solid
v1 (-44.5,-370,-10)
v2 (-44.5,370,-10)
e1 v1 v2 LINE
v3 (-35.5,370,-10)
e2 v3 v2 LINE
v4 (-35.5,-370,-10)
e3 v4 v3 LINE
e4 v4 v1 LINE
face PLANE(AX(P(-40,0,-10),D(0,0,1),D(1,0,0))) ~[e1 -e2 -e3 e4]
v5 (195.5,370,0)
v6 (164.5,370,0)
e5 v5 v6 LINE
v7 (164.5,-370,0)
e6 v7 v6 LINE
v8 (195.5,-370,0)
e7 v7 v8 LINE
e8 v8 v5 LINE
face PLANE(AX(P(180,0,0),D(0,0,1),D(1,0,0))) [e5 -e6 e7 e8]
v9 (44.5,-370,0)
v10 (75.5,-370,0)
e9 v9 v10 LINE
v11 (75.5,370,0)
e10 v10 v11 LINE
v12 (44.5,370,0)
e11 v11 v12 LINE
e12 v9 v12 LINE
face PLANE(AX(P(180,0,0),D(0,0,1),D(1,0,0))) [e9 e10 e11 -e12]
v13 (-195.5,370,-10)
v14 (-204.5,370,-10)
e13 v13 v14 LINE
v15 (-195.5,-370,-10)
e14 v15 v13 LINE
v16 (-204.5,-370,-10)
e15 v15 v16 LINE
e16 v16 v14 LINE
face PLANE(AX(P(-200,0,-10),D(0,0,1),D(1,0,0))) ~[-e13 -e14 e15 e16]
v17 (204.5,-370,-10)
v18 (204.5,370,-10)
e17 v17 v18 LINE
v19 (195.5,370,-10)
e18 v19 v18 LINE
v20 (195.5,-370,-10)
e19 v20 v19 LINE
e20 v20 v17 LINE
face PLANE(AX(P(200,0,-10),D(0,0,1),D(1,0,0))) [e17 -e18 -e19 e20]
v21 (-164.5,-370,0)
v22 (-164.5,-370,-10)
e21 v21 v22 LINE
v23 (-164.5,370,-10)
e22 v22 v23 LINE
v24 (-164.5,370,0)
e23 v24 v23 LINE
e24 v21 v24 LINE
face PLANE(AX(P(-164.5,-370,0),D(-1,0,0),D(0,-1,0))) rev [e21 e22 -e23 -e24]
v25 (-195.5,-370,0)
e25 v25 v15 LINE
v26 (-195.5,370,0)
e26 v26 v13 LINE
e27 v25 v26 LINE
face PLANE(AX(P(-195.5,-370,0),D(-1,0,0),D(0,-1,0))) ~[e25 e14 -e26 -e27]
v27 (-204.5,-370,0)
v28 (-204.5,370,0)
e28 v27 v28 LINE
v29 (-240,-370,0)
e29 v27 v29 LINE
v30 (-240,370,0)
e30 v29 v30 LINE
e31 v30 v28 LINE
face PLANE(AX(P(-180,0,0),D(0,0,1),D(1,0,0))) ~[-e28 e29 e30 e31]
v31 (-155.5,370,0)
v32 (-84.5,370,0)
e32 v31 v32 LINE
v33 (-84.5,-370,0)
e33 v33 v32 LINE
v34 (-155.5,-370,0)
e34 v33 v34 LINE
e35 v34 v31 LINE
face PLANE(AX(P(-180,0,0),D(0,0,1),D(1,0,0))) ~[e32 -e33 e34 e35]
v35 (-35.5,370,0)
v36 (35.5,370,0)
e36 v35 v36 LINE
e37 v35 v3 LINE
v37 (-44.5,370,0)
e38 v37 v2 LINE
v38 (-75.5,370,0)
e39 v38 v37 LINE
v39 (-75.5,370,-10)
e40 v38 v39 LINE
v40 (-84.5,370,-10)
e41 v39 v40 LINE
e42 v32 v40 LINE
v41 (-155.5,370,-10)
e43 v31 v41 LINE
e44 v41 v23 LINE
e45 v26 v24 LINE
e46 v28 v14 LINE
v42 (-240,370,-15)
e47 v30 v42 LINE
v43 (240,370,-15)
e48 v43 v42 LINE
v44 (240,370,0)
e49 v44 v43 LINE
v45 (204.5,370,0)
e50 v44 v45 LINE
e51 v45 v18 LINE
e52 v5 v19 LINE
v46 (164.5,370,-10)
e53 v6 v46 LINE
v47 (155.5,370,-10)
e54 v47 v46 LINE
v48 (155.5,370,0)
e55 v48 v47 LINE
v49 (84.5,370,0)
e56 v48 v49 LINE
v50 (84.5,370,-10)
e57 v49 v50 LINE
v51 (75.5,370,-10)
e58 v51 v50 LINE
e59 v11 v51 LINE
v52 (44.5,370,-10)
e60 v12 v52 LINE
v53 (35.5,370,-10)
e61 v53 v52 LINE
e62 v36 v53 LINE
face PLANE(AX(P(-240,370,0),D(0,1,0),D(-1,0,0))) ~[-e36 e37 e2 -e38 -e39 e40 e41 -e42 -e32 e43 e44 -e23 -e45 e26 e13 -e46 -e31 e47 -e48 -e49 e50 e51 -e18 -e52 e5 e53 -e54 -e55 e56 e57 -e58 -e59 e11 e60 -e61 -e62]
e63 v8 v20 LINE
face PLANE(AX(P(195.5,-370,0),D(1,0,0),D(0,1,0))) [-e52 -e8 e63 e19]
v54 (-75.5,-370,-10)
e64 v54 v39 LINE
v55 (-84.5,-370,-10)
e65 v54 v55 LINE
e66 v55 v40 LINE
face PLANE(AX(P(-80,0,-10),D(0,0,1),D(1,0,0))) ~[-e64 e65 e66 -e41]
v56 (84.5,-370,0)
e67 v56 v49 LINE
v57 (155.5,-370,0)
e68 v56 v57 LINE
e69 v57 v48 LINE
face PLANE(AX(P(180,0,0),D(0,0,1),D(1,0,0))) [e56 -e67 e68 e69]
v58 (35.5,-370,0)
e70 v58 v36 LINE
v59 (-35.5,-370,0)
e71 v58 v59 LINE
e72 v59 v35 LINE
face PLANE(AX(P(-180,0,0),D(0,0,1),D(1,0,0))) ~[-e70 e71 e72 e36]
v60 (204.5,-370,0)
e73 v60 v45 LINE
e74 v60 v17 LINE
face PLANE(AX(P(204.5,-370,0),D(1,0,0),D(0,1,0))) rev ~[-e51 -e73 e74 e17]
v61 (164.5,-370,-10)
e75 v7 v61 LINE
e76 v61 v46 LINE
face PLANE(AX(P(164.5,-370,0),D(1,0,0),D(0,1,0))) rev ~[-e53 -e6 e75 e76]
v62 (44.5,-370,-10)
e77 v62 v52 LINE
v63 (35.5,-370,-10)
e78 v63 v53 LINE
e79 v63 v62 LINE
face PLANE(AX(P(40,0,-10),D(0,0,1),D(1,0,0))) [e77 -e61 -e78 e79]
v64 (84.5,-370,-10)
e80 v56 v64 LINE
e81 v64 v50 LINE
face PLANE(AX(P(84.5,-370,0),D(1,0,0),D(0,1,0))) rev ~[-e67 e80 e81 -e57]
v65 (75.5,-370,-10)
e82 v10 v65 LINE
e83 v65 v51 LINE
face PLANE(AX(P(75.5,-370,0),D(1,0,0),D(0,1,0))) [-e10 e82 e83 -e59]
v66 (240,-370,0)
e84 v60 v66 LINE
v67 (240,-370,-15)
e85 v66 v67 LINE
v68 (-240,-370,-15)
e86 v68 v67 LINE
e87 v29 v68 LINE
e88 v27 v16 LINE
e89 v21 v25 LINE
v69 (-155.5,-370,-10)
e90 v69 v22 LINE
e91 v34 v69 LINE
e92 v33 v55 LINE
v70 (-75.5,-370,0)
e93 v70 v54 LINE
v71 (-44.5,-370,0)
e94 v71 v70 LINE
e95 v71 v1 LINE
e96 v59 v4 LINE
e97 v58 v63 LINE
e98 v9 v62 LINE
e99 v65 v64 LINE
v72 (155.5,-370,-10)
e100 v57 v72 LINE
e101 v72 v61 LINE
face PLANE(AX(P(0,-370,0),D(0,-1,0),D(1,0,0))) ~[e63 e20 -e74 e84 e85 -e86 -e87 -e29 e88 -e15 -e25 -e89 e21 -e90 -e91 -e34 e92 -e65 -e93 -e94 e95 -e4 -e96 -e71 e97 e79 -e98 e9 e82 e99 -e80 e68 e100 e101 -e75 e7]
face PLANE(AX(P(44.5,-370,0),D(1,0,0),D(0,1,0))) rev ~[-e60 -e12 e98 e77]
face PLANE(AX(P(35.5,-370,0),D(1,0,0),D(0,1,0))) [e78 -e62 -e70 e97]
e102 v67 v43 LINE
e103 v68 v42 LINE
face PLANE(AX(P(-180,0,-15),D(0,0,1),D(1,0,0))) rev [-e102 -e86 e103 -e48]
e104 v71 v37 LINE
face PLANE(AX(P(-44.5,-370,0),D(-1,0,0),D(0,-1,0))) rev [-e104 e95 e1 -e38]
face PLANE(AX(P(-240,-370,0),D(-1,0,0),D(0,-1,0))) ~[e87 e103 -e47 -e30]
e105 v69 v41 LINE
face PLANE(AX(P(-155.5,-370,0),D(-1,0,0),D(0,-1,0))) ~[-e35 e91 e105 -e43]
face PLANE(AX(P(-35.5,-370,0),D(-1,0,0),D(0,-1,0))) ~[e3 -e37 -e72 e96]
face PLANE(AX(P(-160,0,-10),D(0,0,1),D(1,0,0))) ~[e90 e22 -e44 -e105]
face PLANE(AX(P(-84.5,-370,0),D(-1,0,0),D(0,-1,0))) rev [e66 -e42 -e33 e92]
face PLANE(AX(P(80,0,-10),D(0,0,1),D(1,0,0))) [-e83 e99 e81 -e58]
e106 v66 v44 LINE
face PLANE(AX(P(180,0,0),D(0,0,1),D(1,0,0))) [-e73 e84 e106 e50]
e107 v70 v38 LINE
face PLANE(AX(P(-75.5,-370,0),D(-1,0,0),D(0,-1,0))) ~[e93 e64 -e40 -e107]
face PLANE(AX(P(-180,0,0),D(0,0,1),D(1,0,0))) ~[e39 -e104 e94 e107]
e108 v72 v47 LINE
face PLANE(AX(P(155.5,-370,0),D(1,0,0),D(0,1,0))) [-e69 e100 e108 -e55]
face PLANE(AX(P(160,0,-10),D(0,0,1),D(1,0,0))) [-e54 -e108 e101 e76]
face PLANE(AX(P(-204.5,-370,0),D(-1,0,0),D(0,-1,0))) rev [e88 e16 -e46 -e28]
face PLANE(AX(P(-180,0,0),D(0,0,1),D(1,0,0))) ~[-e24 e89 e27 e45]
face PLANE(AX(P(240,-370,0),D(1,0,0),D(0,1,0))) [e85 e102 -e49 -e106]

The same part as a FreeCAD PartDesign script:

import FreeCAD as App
import Part
import Sketcher
from FreeCAD import Vector


def add_polygon(sketch, points):
    """Adds a closed chain of lines whose ends are joined by coincident constraints."""
    first, n = sketch.GeometryCount, len(points)
    for a, b in zip(points, points[1:] + points[:1]):
        sketch.addGeometry(Part.LineSegment(App.Vector(*a, 0), App.Vector(*b, 0)), False)
    for i in range(n):
        sketch.addConstraint(Sketcher.Constraint("Coincident", first + i, 2, first + (i + 1) % n, 1))

doc = App.newDocument("Part")
body = doc.addObject("PartDesign::Body", "Body")

sketch1 = body.newObject("Sketcher::SketchObject", "Sketch")
sketch1.AttachmentSupport = (doc.getObject("XY_Plane"), [""])
sketch1.MapMode = "FlatFace"
add_polygon(sketch1, [(240, -370), (240, 370), (0, 370), (0, -370)])
sketch1.addConstraint([
    Sketcher.Constraint("Vertical", 0),
    Sketcher.Constraint("Horizontal", 1),
    Sketcher.Constraint("Vertical", 2),
    Sketcher.Constraint("Horizontal", 3),
    Sketcher.Constraint("Symmetric", 1, 2, 2, 2, -1, 1),
    Sketcher.Constraint("DistanceX", 1, 2, 1, 1, 240.0),
    Sketcher.Constraint("DistanceY", 0, 1, 0, 2, 740.0),
])
pad1 = body.newObject("PartDesign::Pad", "Pad")
pad1.Profile = sketch1
pad1.Length = 15
pad1.Reversed = True

sketch2 = body.newObject("Sketcher::SketchObject", "Sketch001")
sketch2.AttachmentSupport = (doc.getObject("XY_Plane"), [""])
sketch2.MapMode = "FlatFace"
add_polygon(sketch2, [(36, 370), (36, -370), (44, -370), (44, 370)])
add_polygon(sketch2, [(76, 370), (76, -370), (84, -370), (84, 370)])
add_polygon(sketch2, [(156, 370), (156, -370), (164, -370), (164, 370)])
add_polygon(sketch2, [(196, 370), (196, -370), (204, -370), (204, 370)])
sketch2.addConstraint([
    Sketcher.Constraint("Vertical", 0),
    Sketcher.Constraint("Horizontal", 1),
    Sketcher.Constraint("Vertical", 2),
    Sketcher.Constraint("Horizontal", 3),
    Sketcher.Constraint("Vertical", 4),
    Sketcher.Constraint("Horizontal", 5),
    Sketcher.Constraint("Vertical", 6),
    Sketcher.Constraint("Horizontal", 7),
    Sketcher.Constraint("Vertical", 8),
    Sketcher.Constraint("Horizontal", 9),
    Sketcher.Constraint("Vertical", 10),
    Sketcher.Constraint("Horizontal", 11),
    Sketcher.Constraint("Vertical", 12),
    Sketcher.Constraint("Horizontal", 13),
    Sketcher.Constraint("Vertical", 14),
    Sketcher.Constraint("Horizontal", 15),
    Sketcher.Constraint("Horizontal", 1, 2, 4, 2),
    Sketcher.Constraint("Horizontal", 3, 2, 6, 2),
    Sketcher.Constraint("Horizontal", 5, 2, 8, 2),
    Sketcher.Constraint("Horizontal", 7, 2, 10, 2),
    Sketcher.Constraint("Horizontal", 9, 2, 12, 2),
    Sketcher.Constraint("Horizontal", 11, 2, 14, 2),
    Sketcher.Constraint("Equal", 3, 5),
    Sketcher.Constraint("Equal", 7, 9),
    Sketcher.Constraint("Equal", 11, 13),
    Sketcher.Constraint("DistanceX", 1, 1, 1, 2, 9.0),
    Sketcher.Constraint("DistanceY", 0, 2, 0, 1, 740.0),
    Sketcher.Constraint("DistanceY", 0, 2, -1, 1, 370.0),
    Sketcher.Constraint("DistanceX", 1, 2, 4, 2, 31.0),
    Sketcher.Constraint("DistanceX", 5, 2, 8, 2, 71.0),
    Sketcher.Constraint("DistanceX", 9, 2, 12, 2, 31.0),
    Sketcher.Constraint("DistanceX", -1, 1, 0, 2, 35.5),
])
pocket1 = body.newObject("PartDesign::Pocket", "Pocket")
pocket1.Profile = sketch2
pocket1.Length = 10
body2 = doc.addObject("PartDesign::Body", "Body001")
doc.recompute()

body2.BaseFeature = body
doc.recompute()

mirroring = doc.addObject("Part::Mirroring", "Mirroring")
mirroring.Source = body
mirroring.Base = Vector(0, 0, -7.5)
mirroring.Normal = Vector(-1, 0, 0)
body3 = doc.addObject("PartDesign::Body", "Body002")
body3.BaseFeature = mirroring
boolean = body2.newObject("PartDesign::Boolean", "Boolean")
boolean.Type = "Fuse"
boolean.addObjects([body3])
doc.recompute()
mirroring.Visibility = False

doc.recompute()
